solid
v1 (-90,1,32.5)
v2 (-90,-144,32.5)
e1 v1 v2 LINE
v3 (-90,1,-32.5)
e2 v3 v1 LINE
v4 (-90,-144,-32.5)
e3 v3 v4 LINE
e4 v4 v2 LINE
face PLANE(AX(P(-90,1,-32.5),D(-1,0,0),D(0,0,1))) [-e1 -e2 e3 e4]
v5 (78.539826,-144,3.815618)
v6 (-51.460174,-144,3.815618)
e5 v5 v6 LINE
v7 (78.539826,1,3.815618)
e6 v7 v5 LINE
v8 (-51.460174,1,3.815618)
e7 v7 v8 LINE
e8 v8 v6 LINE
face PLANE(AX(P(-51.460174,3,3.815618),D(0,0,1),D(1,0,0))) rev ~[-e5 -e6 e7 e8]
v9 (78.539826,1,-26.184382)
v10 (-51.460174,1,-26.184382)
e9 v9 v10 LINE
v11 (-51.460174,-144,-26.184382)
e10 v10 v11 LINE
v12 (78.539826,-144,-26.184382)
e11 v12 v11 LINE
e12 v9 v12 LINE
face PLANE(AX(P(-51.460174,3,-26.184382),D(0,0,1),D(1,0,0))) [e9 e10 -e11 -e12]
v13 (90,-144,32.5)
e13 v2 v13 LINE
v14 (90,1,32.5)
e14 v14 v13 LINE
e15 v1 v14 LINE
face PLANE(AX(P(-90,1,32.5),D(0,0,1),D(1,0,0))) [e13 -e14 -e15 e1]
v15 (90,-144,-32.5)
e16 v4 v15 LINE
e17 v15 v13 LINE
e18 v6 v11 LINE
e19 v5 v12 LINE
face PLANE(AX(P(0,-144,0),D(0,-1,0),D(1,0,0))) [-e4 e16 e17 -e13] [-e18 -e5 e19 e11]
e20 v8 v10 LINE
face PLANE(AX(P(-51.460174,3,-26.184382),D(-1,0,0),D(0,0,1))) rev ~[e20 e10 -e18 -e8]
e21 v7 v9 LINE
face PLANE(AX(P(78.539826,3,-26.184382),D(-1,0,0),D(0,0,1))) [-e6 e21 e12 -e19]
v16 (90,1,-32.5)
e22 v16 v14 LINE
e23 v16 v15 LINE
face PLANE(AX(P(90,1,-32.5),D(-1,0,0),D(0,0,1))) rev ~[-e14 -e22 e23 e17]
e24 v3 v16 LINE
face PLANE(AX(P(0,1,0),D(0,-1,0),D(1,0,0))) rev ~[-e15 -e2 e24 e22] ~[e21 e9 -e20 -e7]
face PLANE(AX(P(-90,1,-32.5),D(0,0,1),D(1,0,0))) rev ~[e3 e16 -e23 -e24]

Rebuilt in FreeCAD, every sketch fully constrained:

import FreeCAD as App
import Part
import Sketcher
from FreeCAD import Vector

doc = App.newDocument("Part")
body = doc.addObject("PartDesign::Body", "Body")

sketch1 = body.newObject("Sketcher::SketchObject", "Sketch")
sketch1.AttachmentSupport = (doc.getObject("XZ_Plane"), [""])
sketch1.MapMode = "FlatFace"
sketch1.addGeometry(Part.LineSegment(Vector(-51.460174, 3.815618, 0), Vector(-51.460174, -26.184382, 0)), False)
sketch1.addGeometry(Part.LineSegment(Vector(-51.460174, -26.184382, 0), Vector(78.539826, -26.184382, 0)), False)
sketch1.addGeometry(Part.LineSegment(Vector(78.539826, -26.184382, 0), Vector(78.539826, 3.815618, 0)), False)
sketch1.addGeometry(Part.LineSegment(Vector(78.539826, 3.815618, 0), Vector(-51.460174, 3.815618, 0)), False)
sketch1.addConstraint(Sketcher.Constraint("Coincident", 0, 2, 1, 1))
sketch1.addConstraint(Sketcher.Constraint("Coincident", 1, 2, 2, 1))
sketch1.addConstraint(Sketcher.Constraint("Coincident", 2, 2, 3, 1))
sketch1.addConstraint(Sketcher.Constraint("Coincident", 3, 2, 0, 1))
sketch1.addConstraint(Sketcher.Constraint("Vertical", 0))
sketch1.addConstraint(Sketcher.Constraint("Horizontal", 1))
sketch1.addConstraint(Sketcher.Constraint("Vertical", 2))
sketch1.addConstraint(Sketcher.Constraint("Horizontal", 3))
sketch1.addConstraint(Sketcher.Constraint("DistanceX", 1, 1, 1, 2, 130.0))
sketch1.addConstraint(Sketcher.Constraint("DistanceY", 0, 2, 0, 1, 30.0))
sketch1.addConstraint(Sketcher.Constraint("DistanceY", 0, 2, -1, 1, 26.184382))
sketch1.addConstraint(Sketcher.Constraint("DistanceX", 0, 2, -1, 1, 51.460174))
pad1 = body.newObject("PartDesign::Pad", "Pad")
pad1.Profile = sketch1
pad1.Length = 150
body2 = doc.addObject("PartDesign::Body", "Body001")
doc.recompute()

body.Placement = App.Placement(Vector(0, 2, 0), App.Rotation(Vector(0, 0, 1), 0))
boolean = body2.newObject("PartDesign::Boolean", "Boolean")
boolean.Type = "Fuse"
boolean.addObjects([body])
body3 = doc.addObject("PartDesign::Body", "Body002")

sketch2 = body3.newObject("Sketcher::SketchObject", "Sketch001")
sketch2.AttachmentSupport = (doc.getObject("XZ_Plane002"), [""])
sketch2.MapMode = "FlatFace"
sketch2.addGeometry(Part.LineSegment(Vector(-90, 32.5, 0), Vector(-90, -32.5, 0)), False)
sketch2.addGeometry(Part.LineSegment(Vector(-90, -32.5, 0), Vector(90, -32.5, 0)), False)
sketch2.addGeometry(Part.LineSegment(Vector(90, -32.5, 0), Vector(90, 32.5, 0)), False)
sketch2.addGeometry(Part.LineSegment(Vector(90, 32.5, 0), Vector(-90, 32.5, 0)), False)
sketch2.addConstraint(Sketcher.Constraint("Coincident", 0, 2, 1, 1))
sketch2.addConstraint(Sketcher.Constraint("Coincident", 1, 2, 2, 1))
sketch2.addConstraint(Sketcher.Constraint("Coincident", 2, 2, 3, 1))
sketch2.addConstraint(Sketcher.Constraint("Coincident", 3, 2, 0, 1))
sketch2.addConstraint(Sketcher.Constraint("Vertical", 0))
sketch2.addConstraint(Sketcher.Constraint("Horizontal", 1))
sketch2.addConstraint(Sketcher.Constraint("Vertical", 2))
sketch2.addConstraint(Sketcher.Constraint("Horizontal", 3))
sketch2.addConstraint(Sketcher.Constraint("Symmetric", 0, 2, 2, 2, -1, 1))
sketch2.addConstraint(Sketcher.Constraint("DistanceX", 1, 1, 1, 2, 180.0))
sketch2.addConstraint(Sketcher.Constraint("DistanceY", 0, 2, 0, 1, 65.0))
pad2 = body3.newObject("PartDesign::Pad", "Pad001")
pad2.Profile = sketch2
pad2.Length = 145
doc.recompute()

boolean2 = body3.newObject("PartDesign::Boolean", "Boolean001")
boolean2.Type = "Cut"
boolean2.addObjects([body2])
body4 = doc.addObject("PartDesign::Body", "Body003")
doc.recompute()

body3.Placement = App.Placement(Vector(0, 1, 0), App.Rotation(Vector(0, 0, 1), 0))
boolean3 = body4.newObject("PartDesign::Boolean", "Boolean002")
boolean3.Type = "Fuse"
boolean3.addObjects([body3])

doc.recompute()
